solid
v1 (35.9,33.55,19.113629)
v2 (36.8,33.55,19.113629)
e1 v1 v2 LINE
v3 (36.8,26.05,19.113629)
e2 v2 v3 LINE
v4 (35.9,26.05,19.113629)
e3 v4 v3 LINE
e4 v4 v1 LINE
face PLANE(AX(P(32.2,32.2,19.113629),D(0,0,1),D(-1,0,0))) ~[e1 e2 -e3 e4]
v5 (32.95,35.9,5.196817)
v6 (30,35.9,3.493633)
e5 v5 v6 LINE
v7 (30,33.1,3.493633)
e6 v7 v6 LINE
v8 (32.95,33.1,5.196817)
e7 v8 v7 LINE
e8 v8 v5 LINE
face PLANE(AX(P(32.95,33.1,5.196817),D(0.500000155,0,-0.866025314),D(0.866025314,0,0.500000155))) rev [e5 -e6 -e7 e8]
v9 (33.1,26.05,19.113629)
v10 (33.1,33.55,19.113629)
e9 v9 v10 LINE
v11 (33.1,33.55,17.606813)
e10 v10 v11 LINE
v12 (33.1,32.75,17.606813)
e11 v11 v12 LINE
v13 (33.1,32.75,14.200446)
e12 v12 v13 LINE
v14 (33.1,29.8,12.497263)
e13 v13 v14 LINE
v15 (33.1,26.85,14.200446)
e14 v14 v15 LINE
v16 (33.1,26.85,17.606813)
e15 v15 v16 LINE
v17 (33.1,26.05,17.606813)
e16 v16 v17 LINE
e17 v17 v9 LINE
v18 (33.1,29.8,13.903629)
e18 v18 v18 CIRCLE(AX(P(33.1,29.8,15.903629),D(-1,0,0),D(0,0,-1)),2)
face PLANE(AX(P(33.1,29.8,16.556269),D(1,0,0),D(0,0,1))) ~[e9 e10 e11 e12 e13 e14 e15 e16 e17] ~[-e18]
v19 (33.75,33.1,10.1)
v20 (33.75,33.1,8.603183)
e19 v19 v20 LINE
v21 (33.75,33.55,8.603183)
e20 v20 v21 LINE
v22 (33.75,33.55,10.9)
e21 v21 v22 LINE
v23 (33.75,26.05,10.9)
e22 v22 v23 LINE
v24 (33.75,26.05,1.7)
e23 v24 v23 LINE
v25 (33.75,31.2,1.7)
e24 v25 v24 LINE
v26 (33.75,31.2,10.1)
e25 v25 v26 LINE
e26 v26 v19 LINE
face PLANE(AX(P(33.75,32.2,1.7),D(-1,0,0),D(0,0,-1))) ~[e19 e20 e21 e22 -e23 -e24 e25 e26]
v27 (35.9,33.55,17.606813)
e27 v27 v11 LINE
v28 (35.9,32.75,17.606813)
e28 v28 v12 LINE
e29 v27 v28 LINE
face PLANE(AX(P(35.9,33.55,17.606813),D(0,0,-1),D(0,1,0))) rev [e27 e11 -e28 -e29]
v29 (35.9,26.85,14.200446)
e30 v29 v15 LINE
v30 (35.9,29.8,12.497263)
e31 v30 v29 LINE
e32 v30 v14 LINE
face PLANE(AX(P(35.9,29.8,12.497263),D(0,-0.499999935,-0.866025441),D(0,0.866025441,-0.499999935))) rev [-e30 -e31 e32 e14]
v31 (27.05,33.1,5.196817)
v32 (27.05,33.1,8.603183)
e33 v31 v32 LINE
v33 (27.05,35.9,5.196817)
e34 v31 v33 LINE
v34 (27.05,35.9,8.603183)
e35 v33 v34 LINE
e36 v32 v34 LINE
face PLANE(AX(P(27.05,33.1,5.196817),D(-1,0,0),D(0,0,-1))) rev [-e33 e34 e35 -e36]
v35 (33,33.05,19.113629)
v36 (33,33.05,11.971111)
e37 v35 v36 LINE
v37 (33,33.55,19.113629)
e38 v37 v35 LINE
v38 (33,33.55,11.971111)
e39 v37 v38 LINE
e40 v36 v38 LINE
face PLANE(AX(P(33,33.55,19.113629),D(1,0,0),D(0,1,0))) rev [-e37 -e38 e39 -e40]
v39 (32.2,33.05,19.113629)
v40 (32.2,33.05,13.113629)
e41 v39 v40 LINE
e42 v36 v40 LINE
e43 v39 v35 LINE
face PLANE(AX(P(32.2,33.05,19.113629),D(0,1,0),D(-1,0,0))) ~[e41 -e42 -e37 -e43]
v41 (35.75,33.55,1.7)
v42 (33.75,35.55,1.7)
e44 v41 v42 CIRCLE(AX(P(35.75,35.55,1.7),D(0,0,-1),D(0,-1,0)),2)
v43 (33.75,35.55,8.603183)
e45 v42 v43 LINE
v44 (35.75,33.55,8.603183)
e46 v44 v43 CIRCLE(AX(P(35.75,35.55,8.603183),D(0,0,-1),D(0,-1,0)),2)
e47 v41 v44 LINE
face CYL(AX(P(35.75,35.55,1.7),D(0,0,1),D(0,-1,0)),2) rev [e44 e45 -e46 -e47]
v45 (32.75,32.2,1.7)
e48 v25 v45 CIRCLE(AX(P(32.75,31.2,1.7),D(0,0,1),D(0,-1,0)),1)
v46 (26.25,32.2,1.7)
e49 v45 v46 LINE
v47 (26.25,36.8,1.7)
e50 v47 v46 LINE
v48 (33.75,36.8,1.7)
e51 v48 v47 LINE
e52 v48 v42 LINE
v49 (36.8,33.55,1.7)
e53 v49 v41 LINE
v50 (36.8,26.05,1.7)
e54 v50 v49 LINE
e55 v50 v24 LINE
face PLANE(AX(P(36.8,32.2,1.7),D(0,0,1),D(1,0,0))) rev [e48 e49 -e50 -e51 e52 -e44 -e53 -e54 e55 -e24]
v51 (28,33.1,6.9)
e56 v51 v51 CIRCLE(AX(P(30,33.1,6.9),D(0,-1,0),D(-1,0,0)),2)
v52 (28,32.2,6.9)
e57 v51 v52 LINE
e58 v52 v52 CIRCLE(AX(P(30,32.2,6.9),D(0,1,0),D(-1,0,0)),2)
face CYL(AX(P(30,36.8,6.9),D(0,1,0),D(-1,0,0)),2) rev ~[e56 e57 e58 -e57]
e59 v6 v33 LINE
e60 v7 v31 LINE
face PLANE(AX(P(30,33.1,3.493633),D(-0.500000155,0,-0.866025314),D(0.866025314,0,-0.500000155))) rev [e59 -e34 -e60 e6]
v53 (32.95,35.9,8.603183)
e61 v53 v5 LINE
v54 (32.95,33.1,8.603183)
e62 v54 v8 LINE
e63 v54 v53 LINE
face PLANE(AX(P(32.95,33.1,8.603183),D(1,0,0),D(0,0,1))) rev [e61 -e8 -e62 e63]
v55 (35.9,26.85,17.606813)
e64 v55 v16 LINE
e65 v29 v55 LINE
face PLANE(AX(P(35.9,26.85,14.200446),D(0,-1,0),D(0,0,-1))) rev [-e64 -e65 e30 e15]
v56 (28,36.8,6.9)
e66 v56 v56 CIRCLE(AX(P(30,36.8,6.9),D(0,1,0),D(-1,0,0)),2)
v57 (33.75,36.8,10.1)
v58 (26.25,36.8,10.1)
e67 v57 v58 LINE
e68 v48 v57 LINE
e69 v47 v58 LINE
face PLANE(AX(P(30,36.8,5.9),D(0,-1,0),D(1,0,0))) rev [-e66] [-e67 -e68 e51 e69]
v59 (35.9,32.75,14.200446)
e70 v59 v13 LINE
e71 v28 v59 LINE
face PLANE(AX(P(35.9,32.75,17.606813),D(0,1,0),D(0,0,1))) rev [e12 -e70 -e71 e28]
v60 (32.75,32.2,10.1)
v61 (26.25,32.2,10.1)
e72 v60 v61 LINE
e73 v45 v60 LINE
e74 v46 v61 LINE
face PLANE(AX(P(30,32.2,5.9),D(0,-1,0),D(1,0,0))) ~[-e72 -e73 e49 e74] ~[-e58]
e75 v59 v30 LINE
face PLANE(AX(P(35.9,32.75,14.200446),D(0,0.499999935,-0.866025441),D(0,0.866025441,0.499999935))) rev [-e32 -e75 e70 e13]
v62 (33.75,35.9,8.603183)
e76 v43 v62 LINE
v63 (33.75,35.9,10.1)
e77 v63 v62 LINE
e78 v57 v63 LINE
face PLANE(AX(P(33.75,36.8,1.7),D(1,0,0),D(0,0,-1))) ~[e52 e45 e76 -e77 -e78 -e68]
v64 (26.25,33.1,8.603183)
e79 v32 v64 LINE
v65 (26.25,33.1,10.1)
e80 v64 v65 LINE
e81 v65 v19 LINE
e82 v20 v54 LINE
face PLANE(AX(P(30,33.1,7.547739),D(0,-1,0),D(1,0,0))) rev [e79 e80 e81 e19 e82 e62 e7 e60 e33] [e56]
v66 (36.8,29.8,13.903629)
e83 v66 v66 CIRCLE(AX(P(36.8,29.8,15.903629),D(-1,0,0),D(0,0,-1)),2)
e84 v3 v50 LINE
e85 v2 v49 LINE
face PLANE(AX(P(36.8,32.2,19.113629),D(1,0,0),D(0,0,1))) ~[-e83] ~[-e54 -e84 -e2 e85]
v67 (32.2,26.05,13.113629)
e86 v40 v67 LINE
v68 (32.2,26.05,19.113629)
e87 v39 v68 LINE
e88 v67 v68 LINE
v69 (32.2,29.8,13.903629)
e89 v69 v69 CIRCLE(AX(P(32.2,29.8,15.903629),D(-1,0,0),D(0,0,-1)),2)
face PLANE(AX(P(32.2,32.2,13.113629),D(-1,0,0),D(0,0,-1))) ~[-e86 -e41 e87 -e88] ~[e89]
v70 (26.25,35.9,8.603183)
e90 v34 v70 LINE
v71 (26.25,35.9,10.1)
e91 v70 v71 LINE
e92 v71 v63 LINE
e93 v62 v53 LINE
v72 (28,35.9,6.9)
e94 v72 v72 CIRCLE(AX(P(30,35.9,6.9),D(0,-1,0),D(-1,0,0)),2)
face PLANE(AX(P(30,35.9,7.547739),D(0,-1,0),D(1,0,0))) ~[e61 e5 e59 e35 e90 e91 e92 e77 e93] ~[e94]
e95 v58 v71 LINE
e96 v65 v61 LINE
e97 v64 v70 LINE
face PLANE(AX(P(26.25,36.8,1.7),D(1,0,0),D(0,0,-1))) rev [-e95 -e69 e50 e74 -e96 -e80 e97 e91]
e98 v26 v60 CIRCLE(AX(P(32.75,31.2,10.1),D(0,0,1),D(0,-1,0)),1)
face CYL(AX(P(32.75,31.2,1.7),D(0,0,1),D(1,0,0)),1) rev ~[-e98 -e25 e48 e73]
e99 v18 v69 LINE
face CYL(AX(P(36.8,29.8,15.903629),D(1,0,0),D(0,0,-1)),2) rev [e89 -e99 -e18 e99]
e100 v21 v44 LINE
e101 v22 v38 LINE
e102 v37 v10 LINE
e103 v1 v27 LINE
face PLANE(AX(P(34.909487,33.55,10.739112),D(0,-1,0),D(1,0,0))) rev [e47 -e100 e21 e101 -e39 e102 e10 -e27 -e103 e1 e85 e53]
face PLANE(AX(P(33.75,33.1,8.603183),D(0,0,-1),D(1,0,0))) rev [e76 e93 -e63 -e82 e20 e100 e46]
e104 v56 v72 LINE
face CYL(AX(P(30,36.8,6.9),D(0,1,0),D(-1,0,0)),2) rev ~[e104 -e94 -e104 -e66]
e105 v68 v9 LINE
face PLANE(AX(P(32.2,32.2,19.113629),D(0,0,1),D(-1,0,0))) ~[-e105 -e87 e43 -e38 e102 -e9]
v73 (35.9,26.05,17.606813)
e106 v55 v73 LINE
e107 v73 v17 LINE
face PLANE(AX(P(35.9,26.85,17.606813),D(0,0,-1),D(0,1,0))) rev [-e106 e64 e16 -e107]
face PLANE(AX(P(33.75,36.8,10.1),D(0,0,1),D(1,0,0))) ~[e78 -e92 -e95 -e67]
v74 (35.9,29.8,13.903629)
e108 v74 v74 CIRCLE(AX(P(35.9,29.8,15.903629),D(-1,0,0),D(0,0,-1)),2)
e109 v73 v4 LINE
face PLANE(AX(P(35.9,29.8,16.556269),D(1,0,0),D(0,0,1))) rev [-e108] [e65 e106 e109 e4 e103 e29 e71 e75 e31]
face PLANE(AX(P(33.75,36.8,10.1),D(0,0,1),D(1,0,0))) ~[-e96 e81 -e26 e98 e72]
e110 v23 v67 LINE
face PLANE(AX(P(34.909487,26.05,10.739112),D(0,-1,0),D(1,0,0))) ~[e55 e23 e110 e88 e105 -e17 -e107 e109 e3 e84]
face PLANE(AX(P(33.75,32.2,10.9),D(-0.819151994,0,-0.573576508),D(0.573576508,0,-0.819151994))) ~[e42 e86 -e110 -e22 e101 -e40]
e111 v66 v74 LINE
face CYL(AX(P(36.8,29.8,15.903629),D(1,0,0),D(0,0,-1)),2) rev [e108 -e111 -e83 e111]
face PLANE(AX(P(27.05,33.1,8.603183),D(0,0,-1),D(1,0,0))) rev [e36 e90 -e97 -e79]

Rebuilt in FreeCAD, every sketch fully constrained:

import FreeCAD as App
import Part
import Sketcher
Q = App.Units.Quantity


def edges_at(feature, points):
    """Names of the edges that pass closest to the given points."""
    edges = feature.Shape.Edges
    near = lambda p: min(range(len(edges)), key=lambda i: edges[i].distToShape(Part.Vertex(*p))[0])
    return sorted({f"Edge{near(p) + 1}" for p in points})


def add_polygon(sketch, points):
    """Adds a closed chain of lines whose ends are joined by coincident constraints."""
    first, n = sketch.GeometryCount, len(points)
    for a, b in zip(points, points[1:] + points[:1]):
        sketch.addGeometry(Part.LineSegment(App.Vector(*a, 0), App.Vector(*b, 0)), False)
    for i in range(n):
        sketch.addConstraint(Sketcher.Constraint("Coincident", first + i, 2, first + (i + 1) % n, 1))

doc = App.newDocument("Part")
params = doc.addObject("Spreadsheet::Sheet", "Params")
for row, (alias, value) in enumerate([
    ("sketch1_diameter", "4 mm"),
    ("sketch1_width", "7.5 mm"),
    ("sketch1_height", "8.4 mm"),
    ("pad1_length", "4.6 mm"),
    ("sketch2_width", "0.8 mm"),
    ("sketch2_width2", "7.5 mm"),
    ("pocket1_length", "2.8 mm"),
    ("sketch3_height", "6 mm"),
    ("sketch3_width", "4.6 mm"),
    ("sketch3_height2", "9.2 mm"),
    ("sketch3_width2", "3.05 mm"),
    ("pad2_length", "6.15 mm"),
    ("pad2_length2", "1.35 mm"),
    ("sketch4_diameter", "4 mm"),
    ("sketch5_width", "0.8 mm"),
    ("sketch5_width2", "7.5 mm"),
    ("pocket3_length", "2.8 mm"),
    ("sketch6_width", "0.8 mm"),
    ("sketch6_height", "0.5 mm"),
    ("pocket4_length", "8 mm"),
    ("fillet_radius", "1 mm"),
    ("fillet2_radius", "2 mm"),
], start=1):
    params.set(f"A{row}", alias)
    params.set(f"B{row}", "=" + value)
    params.setAlias(f"B{row}", alias)

body = doc.addObject("PartDesign::Body", "Body")

# Sketch on XZ plane
sketch1 = body.newObject("Sketcher::SketchObject", "Sketch")
sketch1.AttachmentSupport = (doc.getObject("XZ_Plane"), [""])
sketch1.MapMode = "FlatFace"
add_polygon(sketch1, [(-3.75, 3.2), (-3.75, -5.2), (3.75, -5.2), (3.75, 3.2)])  # lines 0-3
sketch1.addGeometry(Part.Circle(App.Vector(0, 0, 0), App.Vector(0, 0, 1), 2), False)  # 4
sketch1.addConstraint(Sketcher.Constraint("Vertical", 0))
sketch1.addConstraint(Sketcher.Constraint("Horizontal", 1))
sketch1.addConstraint(Sketcher.Constraint("Vertical", 2))
sketch1.addConstraint(Sketcher.Constraint("Horizontal", 3))
sketch1.addConstraint(Sketcher.Constraint("Coincident", 4, 3, -1, 1))
sketch1.addConstraint(Sketcher.Constraint("Diameter", 4, Q("4 mm")))
sketch1.addConstraint(Sketcher.Constraint("DistanceX", 1, 1, 1, 2, Q("7.5 mm")))
sketch1.addConstraint(Sketcher.Constraint("DistanceY", 0, 2, 0, 1, Q("8.4 mm")))
sketch1.addConstraint(Sketcher.Constraint("DistanceY", 0, 2, -1, 1, Q("5.2 mm")))
sketch1.addConstraint(Sketcher.Constraint("DistanceX", 0, 2, -1, 1, Q("3.75 mm")))
sketch1.setExpression("Constraints[9]", "Params.sketch1_diameter")
sketch1.setExpression("Constraints[10]", "Params.sketch1_width")
sketch1.setExpression("Constraints[11]", "Params.sketch1_height")
pad1 = body.newObject("PartDesign::Pad", "Pad")
pad1.Profile = sketch1
pad1.setExpression("Length", "Params.pad1_length")

# Sketch on XZ plane
sketch2 = body.newObject("Sketcher::SketchObject", "Sketch001")
sketch2.AttachmentSupport = (doc.getObject("XZ_Plane"), [""])
sketch2.MapMode = "FlatFace"
sketch2.AttachmentOffset = App.Placement(App.Vector(0, 0, 3.7), App.Rotation())
add_polygon(sketch2, [(2.95, 1.703183), (3.75, 1.703183), (3.75, 3.2), (-3.75, 3.2), (-3.75, 1.703183), (-2.95, 1.703183), (-2.95, -1.703183), (0, -3.406367), (2.95, -1.703183)])  # lines 0-8
sketch2.addConstraint(Sketcher.Constraint("Horizontal", 0))
sketch2.addConstraint(Sketcher.Constraint("Vertical", 1))
sketch2.addConstraint(Sketcher.Constraint("Horizontal", 2))
sketch2.addConstraint(Sketcher.Constraint("Vertical", 3))
sketch2.addConstraint(Sketcher.Constraint("Horizontal", 4))
sketch2.addConstraint(Sketcher.Constraint("Vertical", 5))
sketch2.addConstraint(Sketcher.Constraint("Vertical", 8))
sketch2.addConstraint(Sketcher.Constraint("Symmetric", 4, 2, 7, 2, -1, 1))
sketch2.addConstraint(Sketcher.Constraint("Symmetric", 0, 2, 3, 2, -2))
sketch2.addConstraint(Sketcher.Constraint("PointOnObject", 6, 2, -2))
sketch2.addConstraint(Sketcher.Constraint("Horizontal", 5, 2, 7, 2))
sketch2.addConstraint(Sketcher.Constraint("Angle", 6, Q("-30.00001 deg")))
sketch2.addConstraint(Sketcher.Constraint("DistanceX", 0, 1, 0, 2, Q("0.8 mm")))
sketch2.addConstraint(Sketcher.Constraint("DistanceX", 2, 2, 2, 1, Q("7.5 mm")))
sketch2.addConstraint(Sketcher.Constraint("DistanceY", -1, 1, 1, 2, Q("3.2 mm")))
sketch2.addConstraint(Sketcher.Constraint("DistanceY", 1, 1, 1, 2, Q("1.496817 mm")))
sketch2.setExpression("Constraints[21]", "Params.sketch2_width")
sketch2.setExpression("Constraints[22]", "Params.sketch2_width2")
pocket1 = body.newObject("PartDesign::Pocket", "Pocket")
pocket1.Profile = sketch2
pocket1.setExpression("Length", "Params.pocket1_length")

# Sketch on XZ plane
sketch3 = body.newObject("Sketcher::SketchObject", "Sketch002")
sketch3.AttachmentSupport = (doc.getObject("XZ_Plane"), [""])
sketch3.MapMode = "FlatFace"
sketch3.AttachmentOffset = App.Placement(App.Vector(0, 0, 4.6), App.Rotation())
add_polygon(sketch3, [(-3.75, -5.2), (-3.75, 4), (-2.2, 6.213629), (-2.2, 12.213629), (-6.8, 12.213629), (-6.8, -5.2)])  # lines 0-5
sketch3.addConstraint(Sketcher.Constraint("Vertical", 0))
sketch3.addConstraint(Sketcher.Constraint("Vertical", 2))
sketch3.addConstraint(Sketcher.Constraint("Horizontal", 3))
sketch3.addConstraint(Sketcher.Constraint("Vertical", 4))
sketch3.addConstraint(Sketcher.Constraint("Horizontal", 5))
sketch3.addConstraint(Sketcher.Constraint("DistanceY", 2, 1, 2, 2, Q("6 mm")))
sketch3.addConstraint(Sketcher.Constraint("Angle", 1, Q("54.999995 deg")))
sketch3.addConstraint(Sketcher.Constraint("DistanceX", 3, 2, 3, 1, Q("4.6 mm")))
sketch3.addConstraint(Sketcher.Constraint("DistanceY", 0, 1, 0, 2, Q("9.2 mm")))
sketch3.addConstraint(Sketcher.Constraint("DistanceY", -1, 1, 0, 2, Q("4 mm")))
sketch3.addConstraint(Sketcher.Constraint("DistanceX", 5, 1, 5, 2, Q("3.05 mm")))
sketch3.addConstraint(Sketcher.Constraint("DistanceX", 1, 2, -1, 1, Q("2.2 mm")))
sketch3.setExpression("Constraints[11]", "Params.sketch3_height")
sketch3.setExpression("Constraints[13]", "Params.sketch3_width")
sketch3.setExpression("Constraints[14]", "Params.sketch3_height2")
sketch3.setExpression("Constraints[16]", "Params.sketch3_width2")
pad2 = body.newObject("PartDesign::Pad", "Pad001")
pad2.Profile = sketch3
pad2.Type = "TwoLengths"
pad2.setExpression("Length", "Params.pad2_length")
pad2.setExpression("Length2", "Params.pad2_length2")

# Sketch on YZ plane
sketch4 = body.newObject("Sketcher::SketchObject", "Sketch003")
sketch4.AttachmentSupport = (doc.getObject("YZ_Plane"), [""])
sketch4.MapMode = "FlatFace"
sketch4.AttachmentOffset = App.Placement(App.Vector(0, 0, -6.8), App.Rotation())
sketch4.addGeometry(Part.Circle(App.Vector(-7, 9.003629, 0), App.Vector(0, 0, 1), 2), False)
sketch4.addConstraint(Sketcher.Constraint("Diameter", 0, Q("4 mm")))
sketch4.addConstraint(Sketcher.Constraint("DistanceX", 0, 3, -1, 1, Q("7 mm")))
sketch4.addConstraint(Sketcher.Constraint("DistanceY", -1, 1, 0, 3, Q("9.003629 mm")))
sketch4.setExpression("Constraints[0]", "Params.sketch4_diameter")
pocket2 = body.newObject("PartDesign::Pocket", "Pocket001")
pocket2.Profile = sketch4
pocket2.Type = "ThroughAll"
pocket2.Reversed = True

# Sketch on YZ plane
sketch5 = body.newObject("Sketcher::SketchObject", "Sketch004")
sketch5.AttachmentSupport = (doc.getObject("YZ_Plane"), [""])
sketch5.MapMode = "FlatFace"
sketch5.AttachmentOffset = App.Placement(App.Vector(0, 0, -5.9), App.Rotation())
add_polygon(sketch5, [(-9.95, 10.706813), (-10.75, 10.706813), (-10.75, 12.213629), (-3.25, 12.213629), (-3.25, 10.706813), (-4.05, 10.706813), (-4.05, 7.300446), (-7, 5.597263), (-9.95, 7.300446)])  # lines 0-8
sketch5.addConstraint(Sketcher.Constraint("Horizontal", 0))
sketch5.addConstraint(Sketcher.Constraint("Vertical", 1))
sketch5.addConstraint(Sketcher.Constraint("Horizontal", 2))
sketch5.addConstraint(Sketcher.Constraint("Vertical", 3))
sketch5.addConstraint(Sketcher.Constraint("Horizontal", 4))
sketch5.addConstraint(Sketcher.Constraint("Vertical", 5))
sketch5.addConstraint(Sketcher.Constraint("Vertical", 8))
sketch5.addConstraint(Sketcher.Constraint("Horizontal", 0, 2, 3, 2))
sketch5.addConstraint(Sketcher.Constraint("Horizontal", 5, 2, 7, 2))
sketch5.addConstraint(Sketcher.Constraint("Equal", 0, 4))
sketch5.addConstraint(Sketcher.Constraint("Equal", 6, 7))
sketch5.addConstraint(Sketcher.Constraint("Angle", 6, Q("-150.000004 deg")))
sketch5.addConstraint(Sketcher.Constraint("DistanceX", 0, 2, 0, 1, Q("0.8 mm")))
sketch5.addConstraint(Sketcher.Constraint("DistanceX", 2, 1, 2, 2, Q("7.5 mm")))
sketch5.addConstraint(Sketcher.Constraint("DistanceX", 6, 2, -1, 1, Q("7 mm")))
sketch5.addConstraint(Sketcher.Constraint("DistanceY", 1, 1, 1, 2, Q("1.506816 mm")))
sketch5.addConstraint(Sketcher.Constraint("DistanceY", 5, 2, 5, 1, Q("3.406367 mm")))
sketch5.addConstraint(Sketcher.Constraint("DistanceY", -1, 1, 1, 2, Q("12.213629 mm")))
sketch5.setExpression("Constraints[21]", "Params.sketch5_width")
sketch5.setExpression("Constraints[22]", "Params.sketch5_width2")
pocket3 = body.newObject("PartDesign::Pocket", "Pocket002")
pocket3.Profile = sketch5
pocket3.setExpression("Length", "Params.pocket3_length")
pocket3.Reversed = True

# Sketch on XY plane
sketch6 = body.newObject("Sketcher::SketchObject", "Sketch005")
sketch6.AttachmentSupport = (doc.getObject("XY_Plane"), [""])
sketch6.MapMode = "FlatFace"
sketch6.AttachmentOffset = App.Placement(App.Vector(0, 0, 12.213629), App.Rotation())
add_polygon(sketch6, [(-2.2, -3.75), (-2.2, -3.25), (-3, -3.25), (-3, -3.75)])  # lines 0-3
sketch6.addConstraint(Sketcher.Constraint("Vertical", 0))
sketch6.addConstraint(Sketcher.Constraint("Horizontal", 1))
sketch6.addConstraint(Sketcher.Constraint("Vertical", 2))
sketch6.addConstraint(Sketcher.Constraint("Horizontal", 3))
sketch6.addConstraint(Sketcher.Constraint("DistanceX", 1, 2, 1, 1, Q("0.8 mm")))
sketch6.addConstraint(Sketcher.Constraint("DistanceY", 0, 1, 0, 2, Q("0.5 mm")))
sketch6.addConstraint(Sketcher.Constraint("DistanceX", 1, 2, -1, 1, Q("3 mm")))
sketch6.addConstraint(Sketcher.Constraint("DistanceY", 0, 2, -1, 1, Q("3.25 mm")))
sketch6.setExpression("Constraints[8]", "Params.sketch6_width")
sketch6.setExpression("Constraints[9]", "Params.sketch6_height")
pocket4 = body.newObject("PartDesign::Pocket", "Pocket003")
pocket4.Profile = sketch6
pocket4.setExpression("Length", "Params.pocket4_length")
doc.recompute()

fillet = body.newObject("PartDesign::Fillet", "Fillet")
fillet.Base = (pocket4, edges_at(pocket4, [(-3.75, -4.6, -1)]))
fillet.setExpression("Radius", "Params.fillet_radius")
doc.recompute()

fillet2 = body.newObject("PartDesign::Fillet", "Fillet001")
fillet2.Base = (fillet, edges_at(fillet, [(-3.75, -3.25, -1.748)]))
fillet2.setExpression("Radius", "Params.fillet2_radius")
body2 = doc.addObject("PartDesign::Body", "Body001")
doc.recompute()

body.Placement = App.Placement(App.Vector(-30, 36.8, 6.9), App.Rotation(App.Vector(0, 0, 1), 0))
boolean = body2.newObject("PartDesign::Boolean", "Boolean")
boolean.Type = "Fuse"
boolean.addObjects([body])
body3 = doc.addObject("PartDesign::Body", "Body002")
doc.recompute()

mirroring = doc.addObject("Part::Mirroring", "Mirroring")
mirroring.Source = body2
mirroring.Base = App.Vector(0, 0, 0)
mirroring.Normal = App.Vector(1, 0, 0)
body3.BaseFeature = mirroring
doc.recompute()
body2.Visibility = False
mirroring.Visibility = False

doc.recompute()
